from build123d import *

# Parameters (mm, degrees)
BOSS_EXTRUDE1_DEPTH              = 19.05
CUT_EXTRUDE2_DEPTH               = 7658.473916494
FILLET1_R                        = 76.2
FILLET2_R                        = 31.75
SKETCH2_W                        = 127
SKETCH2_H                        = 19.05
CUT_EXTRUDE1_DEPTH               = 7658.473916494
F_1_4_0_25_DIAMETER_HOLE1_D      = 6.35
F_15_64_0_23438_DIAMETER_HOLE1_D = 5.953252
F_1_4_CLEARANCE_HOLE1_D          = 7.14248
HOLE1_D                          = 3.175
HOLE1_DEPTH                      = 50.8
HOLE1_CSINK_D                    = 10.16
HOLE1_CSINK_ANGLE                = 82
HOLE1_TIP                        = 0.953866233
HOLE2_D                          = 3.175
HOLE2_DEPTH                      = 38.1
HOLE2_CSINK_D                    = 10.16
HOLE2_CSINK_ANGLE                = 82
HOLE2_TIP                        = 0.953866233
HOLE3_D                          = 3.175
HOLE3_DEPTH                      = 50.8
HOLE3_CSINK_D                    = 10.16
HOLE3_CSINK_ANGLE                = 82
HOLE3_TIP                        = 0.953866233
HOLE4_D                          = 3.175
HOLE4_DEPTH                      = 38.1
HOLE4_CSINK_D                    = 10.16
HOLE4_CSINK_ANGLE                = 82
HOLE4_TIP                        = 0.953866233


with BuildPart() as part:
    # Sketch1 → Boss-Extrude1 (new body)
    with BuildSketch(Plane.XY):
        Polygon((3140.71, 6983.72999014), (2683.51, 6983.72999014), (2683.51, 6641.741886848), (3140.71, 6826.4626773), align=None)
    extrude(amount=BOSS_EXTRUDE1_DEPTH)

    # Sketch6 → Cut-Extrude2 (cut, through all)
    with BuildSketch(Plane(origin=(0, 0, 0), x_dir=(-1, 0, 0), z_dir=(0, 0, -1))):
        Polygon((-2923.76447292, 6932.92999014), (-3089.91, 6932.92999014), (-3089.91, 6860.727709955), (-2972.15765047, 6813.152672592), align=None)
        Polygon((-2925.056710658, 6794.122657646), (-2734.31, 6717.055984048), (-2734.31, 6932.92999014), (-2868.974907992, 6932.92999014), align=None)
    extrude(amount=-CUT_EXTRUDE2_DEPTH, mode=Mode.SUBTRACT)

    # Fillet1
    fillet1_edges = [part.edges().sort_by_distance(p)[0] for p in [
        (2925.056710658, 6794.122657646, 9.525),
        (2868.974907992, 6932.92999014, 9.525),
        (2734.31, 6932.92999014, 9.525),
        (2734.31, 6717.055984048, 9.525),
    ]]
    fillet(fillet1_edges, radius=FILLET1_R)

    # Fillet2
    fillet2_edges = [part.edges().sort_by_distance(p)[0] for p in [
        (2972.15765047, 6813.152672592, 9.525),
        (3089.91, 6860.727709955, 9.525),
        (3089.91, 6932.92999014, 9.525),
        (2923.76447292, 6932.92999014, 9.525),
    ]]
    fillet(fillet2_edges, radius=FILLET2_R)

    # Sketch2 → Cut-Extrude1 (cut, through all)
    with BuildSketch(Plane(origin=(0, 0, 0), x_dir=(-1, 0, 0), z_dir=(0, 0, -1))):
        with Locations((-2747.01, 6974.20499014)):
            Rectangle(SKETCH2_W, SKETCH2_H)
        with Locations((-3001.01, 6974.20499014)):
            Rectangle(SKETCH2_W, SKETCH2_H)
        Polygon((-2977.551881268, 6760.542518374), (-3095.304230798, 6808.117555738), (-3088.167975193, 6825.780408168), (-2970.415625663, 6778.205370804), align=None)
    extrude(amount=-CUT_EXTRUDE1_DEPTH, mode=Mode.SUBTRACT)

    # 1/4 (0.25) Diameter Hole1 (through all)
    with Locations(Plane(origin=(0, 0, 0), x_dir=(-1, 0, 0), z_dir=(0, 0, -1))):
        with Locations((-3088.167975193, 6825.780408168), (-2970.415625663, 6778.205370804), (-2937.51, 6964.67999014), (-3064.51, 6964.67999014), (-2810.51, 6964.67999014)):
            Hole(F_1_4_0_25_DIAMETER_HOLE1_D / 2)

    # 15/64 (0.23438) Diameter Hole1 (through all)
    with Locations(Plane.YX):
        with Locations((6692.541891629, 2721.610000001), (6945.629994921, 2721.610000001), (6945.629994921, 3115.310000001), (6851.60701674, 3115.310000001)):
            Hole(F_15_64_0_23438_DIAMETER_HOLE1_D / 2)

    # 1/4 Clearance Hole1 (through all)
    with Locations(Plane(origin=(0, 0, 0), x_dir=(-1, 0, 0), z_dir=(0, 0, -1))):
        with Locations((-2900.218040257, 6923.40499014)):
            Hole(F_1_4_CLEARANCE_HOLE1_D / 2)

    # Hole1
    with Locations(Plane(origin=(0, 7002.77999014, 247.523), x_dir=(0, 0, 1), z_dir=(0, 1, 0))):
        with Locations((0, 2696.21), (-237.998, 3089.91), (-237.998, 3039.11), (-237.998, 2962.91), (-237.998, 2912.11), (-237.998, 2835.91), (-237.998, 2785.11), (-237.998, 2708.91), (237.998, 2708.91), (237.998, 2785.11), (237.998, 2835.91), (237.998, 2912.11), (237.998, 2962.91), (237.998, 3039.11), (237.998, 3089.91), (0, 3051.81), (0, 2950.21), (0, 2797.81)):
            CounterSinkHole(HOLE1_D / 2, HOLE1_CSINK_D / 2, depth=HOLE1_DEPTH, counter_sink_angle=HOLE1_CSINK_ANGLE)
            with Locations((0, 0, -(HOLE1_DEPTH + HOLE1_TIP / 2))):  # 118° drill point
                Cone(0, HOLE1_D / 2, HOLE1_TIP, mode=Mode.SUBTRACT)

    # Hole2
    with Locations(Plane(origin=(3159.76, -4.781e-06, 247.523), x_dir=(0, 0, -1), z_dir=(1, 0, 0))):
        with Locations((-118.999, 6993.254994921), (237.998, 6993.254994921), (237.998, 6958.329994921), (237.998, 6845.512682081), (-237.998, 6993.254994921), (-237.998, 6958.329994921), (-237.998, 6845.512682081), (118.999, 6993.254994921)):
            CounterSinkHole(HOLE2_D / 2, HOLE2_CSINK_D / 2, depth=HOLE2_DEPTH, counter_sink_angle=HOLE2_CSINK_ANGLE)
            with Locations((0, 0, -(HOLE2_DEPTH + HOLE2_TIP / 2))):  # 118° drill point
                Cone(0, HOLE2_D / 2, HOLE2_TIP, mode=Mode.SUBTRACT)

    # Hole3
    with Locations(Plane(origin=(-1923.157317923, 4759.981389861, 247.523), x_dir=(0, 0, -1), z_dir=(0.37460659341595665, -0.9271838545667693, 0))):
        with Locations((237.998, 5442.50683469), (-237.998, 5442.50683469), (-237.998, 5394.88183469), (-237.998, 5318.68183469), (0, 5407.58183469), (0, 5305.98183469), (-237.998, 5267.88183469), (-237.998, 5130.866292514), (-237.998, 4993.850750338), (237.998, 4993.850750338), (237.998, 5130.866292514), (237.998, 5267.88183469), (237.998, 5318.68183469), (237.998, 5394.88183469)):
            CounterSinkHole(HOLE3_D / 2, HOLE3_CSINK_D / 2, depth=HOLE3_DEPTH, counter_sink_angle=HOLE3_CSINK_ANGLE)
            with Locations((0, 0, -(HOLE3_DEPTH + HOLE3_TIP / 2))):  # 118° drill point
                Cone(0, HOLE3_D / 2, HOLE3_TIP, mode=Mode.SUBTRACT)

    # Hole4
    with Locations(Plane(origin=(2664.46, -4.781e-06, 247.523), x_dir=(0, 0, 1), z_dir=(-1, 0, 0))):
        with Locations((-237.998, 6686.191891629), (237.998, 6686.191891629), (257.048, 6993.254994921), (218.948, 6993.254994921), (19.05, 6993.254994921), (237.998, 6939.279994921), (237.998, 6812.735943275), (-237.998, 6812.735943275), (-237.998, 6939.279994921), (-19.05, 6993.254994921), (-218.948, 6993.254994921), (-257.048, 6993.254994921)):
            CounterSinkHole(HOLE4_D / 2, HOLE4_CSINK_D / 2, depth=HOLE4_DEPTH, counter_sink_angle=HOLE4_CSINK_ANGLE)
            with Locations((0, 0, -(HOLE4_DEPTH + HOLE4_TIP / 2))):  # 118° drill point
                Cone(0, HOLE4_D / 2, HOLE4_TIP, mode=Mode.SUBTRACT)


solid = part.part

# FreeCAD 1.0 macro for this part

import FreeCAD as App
import Part
import Sketcher
from FreeCAD import Vector
Q = App.Units.Quantity


def edges_at(feature, points):
    """Names of the edges that pass closest to the given points."""
    edges = feature.Shape.Edges
    near = lambda p: min(range(len(edges)), key=lambda i: edges[i].distToShape(Part.Vertex(*p))[0])
    return sorted({f"Edge{near(p) + 1}" for p in points})


def add_polygon(sketch, points):
    """Adds a closed chain of lines whose ends are joined by coincident constraints."""
    first, n = sketch.GeometryCount, len(points)
    for a, b in zip(points, points[1:] + points[:1]):
        sketch.addGeometry(Part.LineSegment(App.Vector(*a, 0), App.Vector(*b, 0)), False)
    for i in range(n):
        sketch.addConstraint(Sketcher.Constraint("Coincident", first + i, 2, first + (i + 1) % n, 1))

doc = App.newDocument("Part")
params = doc.addObject("Spreadsheet::Sheet", "Params")
for row, (alias, value) in enumerate([
    ("sketch1_width", "18 in"),
    ("pad1_length", "0.75 in"),
    ("sketch2_length", "5 in"),
    ("fillet_radius", "3 in"),
    ("fillet2_radius", "1.25 in"),
    ("sketch3_width", "5 in"),
    ("sketch3_length", "5 in"),
    ("sketch3_height", "0.75 in"),
    ("sketch3_length2", "0.75 in"),
    ("sketch4_diameter", "0.25 in"),
    ("hole_diameter", "0.25 in"),
    ("hole2_diameter", "5.953252 mm"),
    ("hole3_diameter", "0.2812 in"),
    ("sketch7_diameter", "0.125 in"),
    ("hole4_diameter", "0.125 in"),
    ("hole4_depth", "2 in"),
    ("hole4_csink_diameter", "0.4 in"),
    ("sketch8_diameter", "0.125 in"),
    ("hole5_diameter", "0.125 in"),
    ("hole5_depth", "1.5 in"),
    ("hole5_csink_diameter", "0.4 in"),
    ("sketch9_diameter", "0.125 in"),
    ("hole6_diameter", "0.125 in"),
    ("hole6_depth", "2 in"),
    ("hole6_csink_diameter", "0.4 in"),
    ("sketch10_diameter", "0.125 in"),
    ("hole7_diameter", "0.125 in"),
    ("hole7_depth", "1.5 in"),
    ("hole7_csink_diameter", "0.4 in"),
], start=1):
    params.set(f"A{row}", alias)
    params.set(f"B{row}", "=" + value)
    params.setAlias(f"B{row}", alias)

body = doc.addObject("PartDesign::Body", "Body")

sketch1 = body.newObject("Sketcher::SketchObject", "Sketch")
sketch1.AttachmentSupport = (doc.getObject("XY_Plane"), [""])
sketch1.MapMode = "FlatFace"
add_polygon(sketch1, [(3140.71, 6983.72999), (2683.51, 6983.72999), (2683.51, 6641.741887), (3140.71, 6826.462677)])
sketch1.addConstraint(Sketcher.Constraint("Horizontal", 0))
sketch1.addConstraint(Sketcher.Constraint("Vertical", 1))
sketch1.addConstraint(Sketcher.Constraint("Vertical", 3))
sketch1.addConstraint(Sketcher.Constraint("DistanceX", 0, 2, 0, 1, Q("18 in")))
sketch1.addConstraint(Sketcher.Constraint("Angle", 2, Q("22 deg")))
sketch1.addConstraint(Sketcher.Constraint("DistanceX", -1, 1, 0, 2, Q("105.65 in")))
sketch1.addConstraint(Sketcher.Constraint("DistanceY", 1, 2, 1, 1, Q("341.988103 mm")))
sketch1.addConstraint(Sketcher.Constraint("DistanceY", -1, 1, 0, 2, Q("6983.72999 mm")))
sketch1.setExpression("Constraints[7]", "Params.sketch1_width")
pad1 = body.newObject("PartDesign::Pad", "Pad")
pad1.Profile = sketch1
pad1.setExpression("Length", "Params.pad1_length")

sketch2 = body.newObject("Sketcher::SketchObject", "Sketch001")
sketch2.AttachmentSupport = (doc.getObject("XY_Plane"), [""])
sketch2.MapMode = "FlatFace"
add_polygon(sketch2, [(2923.764473, 6932.92999), (3089.91, 6932.92999), (3089.91, 6860.72771), (2972.15765, 6813.152673)])
add_polygon(sketch2, [(2925.056711, 6794.122658), (2734.31, 6717.055984), (2734.31, 6932.92999), (2868.974908, 6932.92999)])
sketch2.addConstraint(Sketcher.Constraint("Horizontal", 0))
sketch2.addConstraint(Sketcher.Constraint("Vertical", 1))
sketch2.addConstraint(Sketcher.Constraint("Vertical", 5))
sketch2.addConstraint(Sketcher.Constraint("Horizontal", 6))
sketch2.addConstraint(Sketcher.Constraint("Perpendicular", 2, 3))
sketch2.addConstraint(Sketcher.Constraint("Perpendicular", 3, 4))
sketch2.addConstraint(Sketcher.Constraint("Perpendicular", 4, 7))
sketch2.addConstraint(Sketcher.Constraint("Horizontal", 3, 2, 5, 2))
sketch2.addConstraint(Sketcher.Constraint("Distance", 2, Q("5 in")))
sketch2.addConstraint(Sketcher.Constraint("Angle", 2, Q("-158 deg")))
sketch2.addConstraint(Sketcher.Constraint("DistanceX", 4, 2, 1, 2, Q("14 in")))
sketch2.addConstraint(Sketcher.Constraint("DistanceX", -1, 1, 0, 2, Q("121.65 in")))
sketch2.addConstraint(Sketcher.Constraint("Distance", 3, Q("129.183998 mm")))
sketch2.addConstraint(Sketcher.Constraint("Distance", 7, Q("149.708531 mm")))
sketch2.addConstraint(Sketcher.Constraint("DistanceX", 6, 1, 6, 2, Q("134.664908 mm")))
sketch2.addConstraint(Sketcher.Constraint("DistanceY", -1, 1, 0, 2, Q("6932.92999 mm")))
sketch2.setExpression("Constraints[16]", "Params.sketch2_length")
pocket1 = body.newObject("PartDesign::Pocket", "Pocket")
pocket1.Profile = sketch2
pocket1.Type = "ThroughAll"
pocket1.Reversed = True
doc.recompute()

fillet = body.newObject("PartDesign::Fillet", "Fillet")
fillet.Base = (pocket1, edges_at(pocket1, [
    (2925.057, 6794.123, 9.525),
    (2868.975, 6932.93, 9.525),
    (2734.31, 6932.93, 9.525),
    (2734.31, 6717.056, 9.525),
]))
fillet.setExpression("Radius", "Params.fillet_radius")
doc.recompute()

fillet2 = body.newObject("PartDesign::Fillet", "Fillet001")
fillet2.Base = (fillet, edges_at(fillet, [
    (2972.158, 6813.153, 9.525),
    (3089.91, 6860.728, 9.525),
    (3089.91, 6932.93, 9.525),
    (2923.764, 6932.93, 9.525),
]))
fillet2.setExpression("Radius", "Params.fillet2_radius")

sketch3 = body.newObject("Sketcher::SketchObject", "Sketch002")
sketch3.AttachmentSupport = (doc.getObject("XY_Plane"), [""])
sketch3.MapMode = "FlatFace"
add_polygon(sketch3, [(2810.51, 6983.72999), (2810.51, 6964.67999), (2683.51, 6964.67999), (2683.51, 6983.72999)])
add_polygon(sketch3, [(3064.51, 6983.72999), (3064.51, 6964.67999), (2937.51, 6964.67999), (2937.51, 6983.72999)])
add_polygon(sketch3, [(3095.304231, 6808.117556), (2977.551881, 6760.542518), (2970.415626, 6778.205371), (3088.167975, 6825.780408)])
sketch3.addConstraint(Sketcher.Constraint("Vertical", 0))
sketch3.addConstraint(Sketcher.Constraint("Horizontal", 1))
sketch3.addConstraint(Sketcher.Constraint("Vertical", 2))
sketch3.addConstraint(Sketcher.Constraint("Horizontal", 3))
sketch3.addConstraint(Sketcher.Constraint("Vertical", 4))
sketch3.addConstraint(Sketcher.Constraint("Horizontal", 5))
sketch3.addConstraint(Sketcher.Constraint("Vertical", 6))
sketch3.addConstraint(Sketcher.Constraint("Horizontal", 7))
sketch3.addConstraint(Sketcher.Constraint("Perpendicular", 8, 9))
sketch3.addConstraint(Sketcher.Constraint("Perpendicular", 9, 10))
sketch3.addConstraint(Sketcher.Constraint("Perpendicular", 10, 11))
sketch3.addConstraint(Sketcher.Constraint("Horizontal", 1, 2, 4, 2))
sketch3.addConstraint(Sketcher.Constraint("Horizontal", 3, 2, 6, 2))
sketch3.addConstraint(Sketcher.Constraint("Equal", 3, 5))
sketch3.addConstraint(Sketcher.Constraint("DistanceX", 1, 2, 1, 1, Q("5 in")))
sketch3.addConstraint(Sketcher.Constraint("Distance", 8, Q("5 in")))
sketch3.addConstraint(Sketcher.Constraint("Angle", 8, Q("-158 deg")))
sketch3.addConstraint(Sketcher.Constraint("DistanceX", 0, 2, 4, 2, Q("10 in")))
sketch3.addConstraint(Sketcher.Constraint("DistanceY", 0, 2, 0, 1, Q("0.75 in")))
sketch3.addConstraint(Sketcher.Constraint("Distance", 9, Q("0.75 in")))
sketch3.addConstraint(Sketcher.Constraint("DistanceX", -1, 1, 0, 2, Q("110.65 in")))
sketch3.addConstraint(Sketcher.Constraint("DistanceY", -1, 1, 0, 2, Q("6964.67999 mm")))
sketch3.addConstraint(Sketcher.Constraint("DistanceX", -1, 1, 8, 2, Q("2977.551881 mm")))
sketch3.addConstraint(Sketcher.Constraint("DistanceY", -1, 1, 8, 2, Q("6760.542518 mm")))
sketch3.setExpression("Constraints[26]", "Params.sketch3_width")
sketch3.setExpression("Constraints[27]", "Params.sketch3_length")
sketch3.setExpression("Constraints[30]", "Params.sketch3_height")
sketch3.setExpression("Constraints[31]", "Params.sketch3_length2")
pocket2 = body.newObject("PartDesign::Pocket", "Pocket001")
pocket2.Profile = sketch3
pocket2.Type = "ThroughAll"
pocket2.Reversed = True

sketch4 = body.newObject("Sketcher::SketchObject", "Sketch003")
sketch4.AttachmentSupport = (doc.getObject("XY_Plane"), [""])
sketch4.MapMode = "FlatFace"
sketch4.addGeometry(Part.Circle(Vector(3088.167975, 6825.780408, 0), Vector(0, 0, 1), 3.175), False)
sketch4.addGeometry(Part.Circle(Vector(2970.415626, 6778.205371, 0), Vector(0, 0, 1), 3.175), False)
sketch4.addGeometry(Part.Circle(Vector(2937.51, 6964.67999, 0), Vector(0, 0, 1), 3.175), False)
sketch4.addGeometry(Part.Circle(Vector(3064.51, 6964.67999, 0), Vector(0, 0, 1), 3.175), False)
sketch4.addGeometry(Part.Circle(Vector(2810.51, 6964.67999, 0), Vector(0, 0, 1), 3.175), False)
sketch4.addConstraint(Sketcher.Constraint("Equal", 0, 1))
sketch4.addConstraint(Sketcher.Constraint("Equal", 1, 2))
sketch4.addConstraint(Sketcher.Constraint("Equal", 2, 3))
sketch4.addConstraint(Sketcher.Constraint("Equal", 3, 4))
sketch4.addConstraint(Sketcher.Constraint("Horizontal", 2, 3, 3, 3))
sketch4.addConstraint(Sketcher.Constraint("Horizontal", 3, 3, 4, 3))
sketch4.addConstraint(Sketcher.Constraint("Diameter", 0, Q("0.25 in")))
sketch4.addConstraint(Sketcher.Constraint("DistanceX", 2, 3, 3, 3, Q("5 in")))
sketch4.addConstraint(Sketcher.Constraint("DistanceX", 4, 3, 2, 3, Q("5 in")))
sketch4.addConstraint(Sketcher.Constraint("DistanceX", -1, 1, 2, 3, Q("115.65 in")))
sketch4.addConstraint(Sketcher.Constraint("DistanceY", -1, 1, 0, 3, Q("6825.780408 mm")))
sketch4.addConstraint(Sketcher.Constraint("DistanceY", -1, 1, 1, 3, Q("6778.205371 mm")))
sketch4.addConstraint(Sketcher.Constraint("DistanceY", -1, 1, 2, 3, Q("6964.67999 mm")))
sketch4.addConstraint(Sketcher.Constraint("DistanceX", 1, 3, 0, 3, Q("117.75235 mm")))
sketch4.addConstraint(Sketcher.Constraint("DistanceX", -1, 1, 0, 3, Q("3088.167975 mm")))
sketch4.setExpression("Constraints[6]", "Params.sketch4_diameter")
doc.recompute()
hole = body.newObject("PartDesign::Hole", "Hole")
hole.Profile = sketch4
hole.ThreadType = "None"
hole.setExpression("Diameter", "Params.hole_diameter")
hole.DepthType = "ThroughAll"
hole.Reversed = True

sketch5 = body.newObject("Sketcher::SketchObject", "Sketch004")
sketch5.AttachmentSupport = (doc.getObject("XY_Plane"), [""])
sketch5.MapMode = "FlatFace"
sketch5.addGeometry(Part.Circle(Vector(2721.61, 6692.541892, 0), Vector(0, 0, 1), 2.976626), False)
sketch5.addGeometry(Part.Circle(Vector(2721.61, 6945.629995, 0), Vector(0, 0, 1), 2.976626), False)
sketch5.addGeometry(Part.Circle(Vector(3115.31, 6945.629995, 0), Vector(0, 0, 1), 2.976626), False)
sketch5.addGeometry(Part.Circle(Vector(3115.31, 6851.607017, 0), Vector(0, 0, 1), 2.976626), False)
sketch5.addConstraint(Sketcher.Constraint("Equal", 0, 1))
sketch5.addConstraint(Sketcher.Constraint("Equal", 1, 2))
sketch5.addConstraint(Sketcher.Constraint("Equal", 2, 3))
sketch5.addConstraint(Sketcher.Constraint("Horizontal", 1, 3, 2, 3))
sketch5.addConstraint(Sketcher.Constraint("Vertical", 0, 3, 1, 3))
sketch5.addConstraint(Sketcher.Constraint("Vertical", 2, 3, 3, 3))
sketch5.addConstraint(Sketcher.Constraint("DistanceX", 1, 3, 2, 3, Q("15.5 in")))
sketch5.addConstraint(Sketcher.Constraint("DistanceX", -1, 1, 0, 3, Q("107.15 in")))
sketch5.addConstraint(Sketcher.Constraint("DistanceY", -1, 1, 1, 3, Q("273.4499998 in")))
sketch5.addConstraint(Sketcher.Constraint("Diameter", 0, Q("5.953252 mm")))
sketch5.addConstraint(Sketcher.Constraint("DistanceY", -1, 1, 0, 3, Q("6692.541892 mm")))
sketch5.addConstraint(Sketcher.Constraint("DistanceY", 3, 3, 2, 3, Q("94.022978 mm")))
doc.recompute()
hole2 = body.newObject("PartDesign::Hole", "Hole001")
hole2.Profile = sketch5
hole2.ThreadType = "None"
hole2.setExpression("Diameter", "Params.hole2_diameter")
hole2.DepthType = "ThroughAll"
hole2.Reversed = True

sketch6 = body.newObject("Sketcher::SketchObject", "Sketch005")
sketch6.AttachmentSupport = (doc.getObject("XY_Plane"), [""])
sketch6.MapMode = "FlatFace"
sketch6.addGeometry(Part.Circle(Vector(2900.21804, 6923.40499, 0), Vector(0, 0, 1), 3.57124), False)
sketch6.addConstraint(Sketcher.Constraint("Diameter", 0, Q("0.2812 in")))
sketch6.addConstraint(Sketcher.Constraint("DistanceX", -1, 1, 0, 3, Q("2900.21804 mm")))
sketch6.addConstraint(Sketcher.Constraint("DistanceY", -1, 1, 0, 3, Q("6923.40499 mm")))
doc.recompute()
hole3 = body.newObject("PartDesign::Hole", "Hole002")
hole3.Profile = sketch6
hole3.ThreadType = "None"
hole3.setExpression("Diameter", "Params.hole3_diameter")
hole3.DepthType = "ThroughAll"
hole3.Reversed = True

sketch7 = body.newObject("Sketcher::SketchObject", "Sketch006")
sketch7.AttachmentSupport = (doc.getObject("XZ_Plane"), [""])
sketch7.MapMode = "FlatFace"
sketch7.AttachmentOffset = App.Placement(Vector(0, 0, -7002.77999), App.Rotation())
sketch7.addGeometry(Part.Circle(Vector(2696.21, 247.523, 0), Vector(0, 0, 1), 1.5875), False)
sketch7.addGeometry(Part.Circle(Vector(3089.91, 9.525, 0), Vector(0, 0, 1), 1.5875), False)
sketch7.addGeometry(Part.Circle(Vector(3039.11, 9.525, 0), Vector(0, 0, 1), 1.5875), False)
sketch7.addGeometry(Part.Circle(Vector(2962.91, 9.525, 0), Vector(0, 0, 1), 1.5875), False)
sketch7.addGeometry(Part.Circle(Vector(2912.11, 9.525, 0), Vector(0, 0, 1), 1.5875), False)
sketch7.addGeometry(Part.Circle(Vector(2835.91, 9.525, 0), Vector(0, 0, 1), 1.5875), False)
sketch7.addGeometry(Part.Circle(Vector(2785.11, 9.525, 0), Vector(0, 0, 1), 1.5875), False)
sketch7.addGeometry(Part.Circle(Vector(2708.91, 9.525, 0), Vector(0, 0, 1), 1.5875), False)
sketch7.addGeometry(Part.Circle(Vector(2708.91, 485.521, 0), Vector(0, 0, 1), 1.5875), False)
sketch7.addGeometry(Part.Circle(Vector(2785.11, 485.521, 0), Vector(0, 0, 1), 1.5875), False)
sketch7.addGeometry(Part.Circle(Vector(2835.91, 485.521, 0), Vector(0, 0, 1), 1.5875), False)
sketch7.addGeometry(Part.Circle(Vector(2912.11, 485.521, 0), Vector(0, 0, 1), 1.5875), False)
sketch7.addGeometry(Part.Circle(Vector(2962.91, 485.521, 0), Vector(0, 0, 1), 1.5875), False)
sketch7.addGeometry(Part.Circle(Vector(3039.11, 485.521, 0), Vector(0, 0, 1), 1.5875), False)
sketch7.addGeometry(Part.Circle(Vector(3089.91, 485.521, 0), Vector(0, 0, 1), 1.5875), False)
sketch7.addGeometry(Part.Circle(Vector(3051.81, 247.523, 0), Vector(0, 0, 1), 1.5875), False)
sketch7.addGeometry(Part.Circle(Vector(2950.21, 247.523, 0), Vector(0, 0, 1), 1.5875), False)
sketch7.addGeometry(Part.Circle(Vector(2797.81, 247.523, 0), Vector(0, 0, 1), 1.5875), False)
sketch7.addConstraint(Sketcher.Constraint("Equal", 0, 1))
sketch7.addConstraint(Sketcher.Constraint("Equal", 1, 2))
sketch7.addConstraint(Sketcher.Constraint("Equal", 2, 3))
sketch7.addConstraint(Sketcher.Constraint("Equal", 3, 4))
sketch7.addConstraint(Sketcher.Constraint("Equal", 4, 5))
sketch7.addConstraint(Sketcher.Constraint("Equal", 5, 6))
sketch7.addConstraint(Sketcher.Constraint("Equal", 6, 7))
sketch7.addConstraint(Sketcher.Constraint("Equal", 7, 8))
sketch7.addConstraint(Sketcher.Constraint("Equal", 8, 9))
sketch7.addConstraint(Sketcher.Constraint("Equal", 9, 10))
sketch7.addConstraint(Sketcher.Constraint("Equal", 10, 11))
sketch7.addConstraint(Sketcher.Constraint("Equal", 11, 12))
sketch7.addConstraint(Sketcher.Constraint("Equal", 12, 13))
sketch7.addConstraint(Sketcher.Constraint("Equal", 13, 14))
sketch7.addConstraint(Sketcher.Constraint("Equal", 14, 15))
sketch7.addConstraint(Sketcher.Constraint("Equal", 15, 16))
sketch7.addConstraint(Sketcher.Constraint("Equal", 16, 17))
sketch7.addConstraint(Sketcher.Constraint("Horizontal", 1, 3, 2, 3))
sketch7.addConstraint(Sketcher.Constraint("Horizontal", 2, 3, 3, 3))
sketch7.addConstraint(Sketcher.Constraint("Horizontal", 3, 3, 4, 3))
sketch7.addConstraint(Sketcher.Constraint("Horizontal", 4, 3, 5, 3))
sketch7.addConstraint(Sketcher.Constraint("Horizontal", 5, 3, 6, 3))
sketch7.addConstraint(Sketcher.Constraint("Horizontal", 6, 3, 7, 3))
sketch7.addConstraint(Sketcher.Constraint("Horizontal", 8, 3, 9, 3))
sketch7.addConstraint(Sketcher.Constraint("Horizontal", 9, 3, 10, 3))
sketch7.addConstraint(Sketcher.Constraint("Horizontal", 10, 3, 11, 3))
sketch7.addConstraint(Sketcher.Constraint("Horizontal", 11, 3, 12, 3))
sketch7.addConstraint(Sketcher.Constraint("Horizontal", 12, 3, 13, 3))
sketch7.addConstraint(Sketcher.Constraint("Horizontal", 13, 3, 14, 3))
sketch7.addConstraint(Sketcher.Constraint("Horizontal", 0, 3, 15, 3))
sketch7.addConstraint(Sketcher.Constraint("Horizontal", 15, 3, 16, 3))
sketch7.addConstraint(Sketcher.Constraint("Horizontal", 16, 3, 17, 3))
sketch7.addConstraint(Sketcher.Constraint("Vertical", 7, 3, 8, 3))
sketch7.addConstraint(Sketcher.Constraint("Vertical", 6, 3, 9, 3))
sketch7.addConstraint(Sketcher.Constraint("Vertical", 5, 3, 10, 3))
sketch7.addConstraint(Sketcher.Constraint("Vertical", 4, 3, 11, 3))
sketch7.addConstraint(Sketcher.Constraint("Vertical", 3, 3, 12, 3))
sketch7.addConstraint(Sketcher.Constraint("Vertical", 2, 3, 13, 3))
sketch7.addConstraint(Sketcher.Constraint("Vertical", 1, 3, 14, 3))
sketch7.addConstraint(Sketcher.Constraint("Diameter", 0, Q("0.125 in")))
sketch7.addConstraint(Sketcher.Constraint("DistanceX", 2, 3, 1, 3, Q("2 in")))
sketch7.addConstraint(Sketcher.Constraint("DistanceX", 3, 3, 2, 3, Q("3 in")))
sketch7.addConstraint(Sketcher.Constraint("DistanceX", 4, 3, 3, 3, Q("2 in")))
sketch7.addConstraint(Sketcher.Constraint("DistanceX", 5, 3, 4, 3, Q("3 in")))
sketch7.addConstraint(Sketcher.Constraint("DistanceX", 6, 3, 5, 3, Q("2 in")))
sketch7.addConstraint(Sketcher.Constraint("DistanceX", 7, 3, 6, 3, Q("3 in")))
sketch7.addConstraint(Sketcher.Constraint("DistanceX", 16, 3, 15, 3, Q("4 in")))
sketch7.addConstraint(Sketcher.Constraint("DistanceX", 0, 3, 17, 3, Q("4 in")))
sketch7.addConstraint(Sketcher.Constraint("DistanceX", 17, 3, 16, 3, Q("6 in")))
sketch7.addConstraint(Sketcher.Constraint("DistanceX", 0, 3, 1, 3, Q("15.5 in")))
sketch7.addConstraint(Sketcher.Constraint("DistanceX", -1, 1, 0, 3, Q("106.15 in")))
sketch7.addConstraint(Sketcher.Constraint("DistanceY", 1, 3, 0, 3, Q("9.37 in")))
sketch7.addConstraint(Sketcher.Constraint("DistanceY", 0, 3, 8, 3, Q("9.37 in")))
sketch7.addConstraint(Sketcher.Constraint("DistanceY", -1, 1, 0, 3, Q("9.745 in")))
sketch7.setExpression("Constraints[39]", "Params.sketch7_diameter")
doc.recompute()
hole4 = body.newObject("PartDesign::Hole", "Hole003")
hole4.Profile = sketch7
hole4.ThreadType = "None"
hole4.setExpression("Diameter", "Params.hole4_diameter")
hole4.DepthType = "Dimension"
hole4.setExpression("Depth", "Params.hole4_depth")
hole4.DrillPoint = "Angled"
hole4.DrillPointAngle = 118
hole4.HoleCutType = "Countersink"
hole4.setExpression("HoleCutDiameter", "Params.hole4_csink_diameter")
hole4.HoleCutCountersinkAngle = 82
hole4.Reversed = True

sketch8 = body.newObject("Sketcher::SketchObject", "Sketch007")
sketch8.AttachmentSupport = (doc.getObject("YZ_Plane"), [""])
sketch8.MapMode = "FlatFace"
sketch8.AttachmentOffset = App.Placement(Vector(0, 0, 124.4 * 25.4), App.Rotation())
sketch8.addGeometry(Part.Circle(Vector(6993.25499, 366.522, 0), Vector(0, 0, 1), 1.5875), False)
sketch8.addGeometry(Part.Circle(Vector(6993.25499, 9.525, 0), Vector(0, 0, 1), 1.5875), False)
sketch8.addGeometry(Part.Circle(Vector(6958.32999, 9.525, 0), Vector(0, 0, 1), 1.5875), False)
sketch8.addGeometry(Part.Circle(Vector(6845.512677, 9.525, 0), Vector(0, 0, 1), 1.5875), False)
sketch8.addGeometry(Part.Circle(Vector(6993.25499, 485.521, 0), Vector(0, 0, 1), 1.5875), False)
sketch8.addGeometry(Part.Circle(Vector(6958.32999, 485.521, 0), Vector(0, 0, 1), 1.5875), False)
sketch8.addGeometry(Part.Circle(Vector(6845.512677, 485.521, 0), Vector(0, 0, 1), 1.5875), False)
sketch8.addGeometry(Part.Circle(Vector(6993.25499, 128.524, 0), Vector(0, 0, 1), 1.5875), False)
sketch8.addConstraint(Sketcher.Constraint("Equal", 0, 1))
sketch8.addConstraint(Sketcher.Constraint("Equal", 1, 2))
sketch8.addConstraint(Sketcher.Constraint("Equal", 2, 3))
sketch8.addConstraint(Sketcher.Constraint("Equal", 3, 4))
sketch8.addConstraint(Sketcher.Constraint("Equal", 4, 5))
sketch8.addConstraint(Sketcher.Constraint("Equal", 5, 6))
sketch8.addConstraint(Sketcher.Constraint("Equal", 6, 7))
sketch8.addConstraint(Sketcher.Constraint("Horizontal", 1, 3, 2, 3))
sketch8.addConstraint(Sketcher.Constraint("Horizontal", 2, 3, 3, 3))
sketch8.addConstraint(Sketcher.Constraint("Horizontal", 4, 3, 5, 3))
sketch8.addConstraint(Sketcher.Constraint("Horizontal", 5, 3, 6, 3))
sketch8.addConstraint(Sketcher.Constraint("Vertical", 0, 3, 1, 3))
sketch8.addConstraint(Sketcher.Constraint("Vertical", 1, 3, 4, 3))
sketch8.addConstraint(Sketcher.Constraint("Vertical", 2, 3, 5, 3))
sketch8.addConstraint(Sketcher.Constraint("Vertical", 3, 3, 6, 3))
sketch8.addConstraint(Sketcher.Constraint("Vertical", 4, 3, 7, 3))
sketch8.addConstraint(Sketcher.Constraint("Diameter", 0, Q("0.125 in")))
sketch8.addConstraint(Sketcher.Constraint("DistanceY", -1, 1, 0, 3, Q("14.43 in")))
sketch8.addConstraint(Sketcher.Constraint("DistanceY", -1, 1, 7, 3, Q("5.06 in")))
sketch8.addConstraint(Sketcher.Constraint("DistanceY", 1, 3, 4, 3, Q("18.74 in")))
sketch8.addConstraint(Sketcher.Constraint("DistanceY", -1, 1, 1, 3, Q("0.375 in")))
sketch8.addConstraint(Sketcher.Constraint("DistanceX", 2, 3, 1, 3, Q("1.375 in")))
sketch8.addConstraint(Sketcher.Constraint("DistanceX", -1, 1, 0, 3, Q("6993.25499 mm")))
sketch8.addConstraint(Sketcher.Constraint("DistanceX", -1, 1, 3, 3, Q("6845.512677 mm")))
sketch8.setExpression("Constraints[16]", "Params.sketch8_diameter")
doc.recompute()
hole5 = body.newObject("PartDesign::Hole", "Hole004")
hole5.Profile = sketch8
hole5.ThreadType = "None"
hole5.setExpression("Diameter", "Params.hole5_diameter")
hole5.DepthType = "Dimension"
hole5.setExpression("Depth", "Params.hole5_depth")
hole5.DrillPoint = "Angled"
hole5.DrillPointAngle = 118
hole5.HoleCutType = "Countersink"
hole5.setExpression("HoleCutDiameter", "Params.hole5_csink_diameter")
hole5.HoleCutCountersinkAngle = 82

sketch9 = body.newObject("Sketcher::SketchObject", "Sketch008")
sketch9.Placement = App.Placement(Vector(-1923.157316, 4759.981391, 0), App.Rotation(Vector(0, 0, -1), Vector(0.927183855, 0.374606593, 0), Vector(0.374606593, -0.927183855, 0), "ZXY"))
sketch9.addGeometry(Part.Circle(Vector(-9.525, 5442.506836, 0), Vector(0, 0, 1), 1.5875), False)
sketch9.addGeometry(Part.Circle(Vector(-485.521, 5442.506836, 0), Vector(0, 0, 1), 1.5875), False)
sketch9.addGeometry(Part.Circle(Vector(-485.521, 5394.881836, 0), Vector(0, 0, 1), 1.5875), False)
sketch9.addGeometry(Part.Circle(Vector(-485.521, 5318.681836, 0), Vector(0, 0, 1), 1.5875), False)
sketch9.addGeometry(Part.Circle(Vector(-247.523, 5407.581836, 0), Vector(0, 0, 1), 1.5875), False)
sketch9.addGeometry(Part.Circle(Vector(-247.523, 5305.981836, 0), Vector(0, 0, 1), 1.5875), False)
sketch9.addGeometry(Part.Circle(Vector(-485.521, 5267.881835, 0), Vector(0, 0, 1), 1.5875), False)
sketch9.addGeometry(Part.Circle(Vector(-485.521, 5130.866293, 0), Vector(0, 0, 1), 1.5875), False)
sketch9.addGeometry(Part.Circle(Vector(-485.521, 4993.850751, 0), Vector(0, 0, 1), 1.5875), False)
sketch9.addGeometry(Part.Circle(Vector(-9.525, 4993.850751, 0), Vector(0, 0, 1), 1.5875), False)
sketch9.addGeometry(Part.Circle(Vector(-9.525, 5130.866293, 0), Vector(0, 0, 1), 1.5875), False)
sketch9.addGeometry(Part.Circle(Vector(-9.525, 5267.881835, 0), Vector(0, 0, 1), 1.5875), False)
sketch9.addGeometry(Part.Circle(Vector(-9.525, 5318.681836, 0), Vector(0, 0, 1), 1.5875), False)
sketch9.addGeometry(Part.Circle(Vector(-9.525, 5394.881836, 0), Vector(0, 0, 1), 1.5875), False)
sketch9.addConstraint(Sketcher.Constraint("Equal", 0, 1))
sketch9.addConstraint(Sketcher.Constraint("Equal", 1, 2))
sketch9.addConstraint(Sketcher.Constraint("Equal", 2, 3))
sketch9.addConstraint(Sketcher.Constraint("Equal", 3, 4))
sketch9.addConstraint(Sketcher.Constraint("Equal", 4, 5))
sketch9.addConstraint(Sketcher.Constraint("Equal", 5, 6))
sketch9.addConstraint(Sketcher.Constraint("Equal", 6, 7))
sketch9.addConstraint(Sketcher.Constraint("Equal", 7, 8))
sketch9.addConstraint(Sketcher.Constraint("Equal", 8, 9))
sketch9.addConstraint(Sketcher.Constraint("Equal", 9, 10))
sketch9.addConstraint(Sketcher.Constraint("Equal", 10, 11))
sketch9.addConstraint(Sketcher.Constraint("Equal", 11, 12))
sketch9.addConstraint(Sketcher.Constraint("Equal", 12, 13))
sketch9.addConstraint(Sketcher.Constraint("Horizontal", 0, 3, 1, 3))
sketch9.addConstraint(Sketcher.Constraint("Horizontal", 8, 3, 9, 3))
sketch9.addConstraint(Sketcher.Constraint("Horizontal", 7, 3, 10, 3))
sketch9.addConstraint(Sketcher.Constraint("Horizontal", 6, 3, 11, 3))
sketch9.addConstraint(Sketcher.Constraint("Horizontal", 3, 3, 12, 3))
sketch9.addConstraint(Sketcher.Constraint("Horizontal", 2, 3, 13, 3))
sketch9.addConstraint(Sketcher.Constraint("Vertical", 1, 3, 2, 3))
sketch9.addConstraint(Sketcher.Constraint("Vertical", 2, 3, 3, 3))
sketch9.addConstraint(Sketcher.Constraint("Vertical", 4, 3, 5, 3))
sketch9.addConstraint(Sketcher.Constraint("Vertical", 3, 3, 6, 3))
sketch9.addConstraint(Sketcher.Constraint("Vertical", 6, 3, 7, 3))
sketch9.addConstraint(Sketcher.Constraint("Vertical", 7, 3, 8, 3))
sketch9.addConstraint(Sketcher.Constraint("Vertical", 0, 3, 9, 3))
sketch9.addConstraint(Sketcher.Constraint("Vertical", 9, 3, 10, 3))
sketch9.addConstraint(Sketcher.Constraint("Vertical", 10, 3, 11, 3))
sketch9.addConstraint(Sketcher.Constraint("Vertical", 11, 3, 12, 3))
sketch9.addConstraint(Sketcher.Constraint("Vertical", 12, 3, 13, 3))
sketch9.addConstraint(Sketcher.Constraint("Diameter", 0, Q("0.125 in")))
sketch9.addConstraint(Sketcher.Constraint("DistanceY", 3, 3, 2, 3, Q("3 in")))
sketch9.addConstraint(Sketcher.Constraint("DistanceY", 5, 3, 4, 3, Q("4 in")))
sketch9.addConstraint(Sketcher.Constraint("DistanceY", 6, 3, 3, 3, Q("2 in")))
sketch9.addConstraint(Sketcher.Constraint("DistanceY", 2, 3, 4, 3, Q("0.5 in")))
sketch9.addConstraint(Sketcher.Constraint("DistanceX", 1, 3, 0, 3, Q("18.74 in")))
sketch9.addConstraint(Sketcher.Constraint("DistanceX", 2, 3, 4, 3, Q("9.37 in")))
sketch9.addConstraint(Sketcher.Constraint("DistanceX", 0, 3, -1, 1, Q("0.375 in")))
sketch9.addConstraint(Sketcher.Constraint("DistanceY", 2, 3, 1, 3, Q("1.875 in")))
sketch9.addConstraint(Sketcher.Constraint("DistanceY", -1, 1, 8, 3, Q("4993.850751 mm")))
sketch9.addConstraint(Sketcher.Constraint("DistanceY", -1, 1, 0, 3, Q("5442.506836 mm")))
sketch9.addConstraint(Sketcher.Constraint("DistanceY", -1, 1, 7, 3, Q("5130.866293 mm")))
sketch9.setExpression("Constraints[30]", "Params.sketch9_diameter")
doc.recompute()
hole6 = body.newObject("PartDesign::Hole", "Hole005")
hole6.Profile = sketch9
hole6.ThreadType = "None"
hole6.setExpression("Diameter", "Params.hole6_diameter")
hole6.DepthType = "Dimension"
hole6.setExpression("Depth", "Params.hole6_depth")
hole6.DrillPoint = "Angled"
hole6.DrillPointAngle = 118
hole6.HoleCutType = "Countersink"
hole6.setExpression("HoleCutDiameter", "Params.hole6_csink_diameter")
hole6.HoleCutCountersinkAngle = 82

sketch10 = body.newObject("Sketcher::SketchObject", "Sketch009")
sketch10.AttachmentSupport = (doc.getObject("YZ_Plane"), [""])
sketch10.MapMode = "FlatFace"
sketch10.AttachmentOffset = App.Placement(Vector(0, 0, 104.9 * 25.4), App.Rotation())
sketch10.addGeometry(Part.Circle(Vector(6686.191887, 9.525, 0), Vector(0, 0, 1), 1.5875), False)
sketch10.addGeometry(Part.Circle(Vector(6686.191887, 485.521, 0), Vector(0, 0, 1), 1.5875), False)
sketch10.addGeometry(Part.Circle(Vector(6993.25499, 504.571, 0), Vector(0, 0, 1), 1.5875), False)
sketch10.addGeometry(Part.Circle(Vector(6993.25499, 466.471, 0), Vector(0, 0, 1), 1.5875), False)
sketch10.addGeometry(Part.Circle(Vector(6993.25499, 266.573, 0), Vector(0, 0, 1), 1.5875), False)
sketch10.addGeometry(Part.Circle(Vector(6939.27999, 485.521, 0), Vector(0, 0, 1), 1.5875), False)
sketch10.addGeometry(Part.Circle(Vector(6812.735938, 485.521, 0), Vector(0, 0, 1), 1.5875), False)
sketch10.addGeometry(Part.Circle(Vector(6812.735938, 9.525, 0), Vector(0, 0, 1), 1.5875), False)
sketch10.addGeometry(Part.Circle(Vector(6939.27999, 9.525, 0), Vector(0, 0, 1), 1.5875), False)
sketch10.addGeometry(Part.Circle(Vector(6993.25499, 228.473, 0), Vector(0, 0, 1), 1.5875), False)
sketch10.addGeometry(Part.Circle(Vector(6993.25499, 28.575, 0), Vector(0, 0, 1), 1.5875), False)
sketch10.addGeometry(Part.Circle(Vector(6993.25499, -9.525, 0), Vector(0, 0, 1), 1.5875), False)
sketch10.addConstraint(Sketcher.Constraint("Equal", 0, 1))
sketch10.addConstraint(Sketcher.Constraint("Equal", 1, 2))
sketch10.addConstraint(Sketcher.Constraint("Equal", 2, 3))
sketch10.addConstraint(Sketcher.Constraint("Equal", 3, 4))
sketch10.addConstraint(Sketcher.Constraint("Equal", 4, 5))
sketch10.addConstraint(Sketcher.Constraint("Equal", 5, 6))
sketch10.addConstraint(Sketcher.Constraint("Equal", 6, 7))
sketch10.addConstraint(Sketcher.Constraint("Equal", 7, 8))
sketch10.addConstraint(Sketcher.Constraint("Equal", 8, 9))
sketch10.addConstraint(Sketcher.Constraint("Equal", 9, 10))
sketch10.addConstraint(Sketcher.Constraint("Equal", 10, 11))
sketch10.addConstraint(Sketcher.Constraint("Horizontal", 1, 3, 5, 3))
sketch10.addConstraint(Sketcher.Constraint("Horizontal", 5, 3, 6, 3))
sketch10.addConstraint(Sketcher.Constraint("Horizontal", 0, 3, 7, 3))
sketch10.addConstraint(Sketcher.Constraint("Horizontal", 7, 3, 8, 3))
sketch10.addConstraint(Sketcher.Constraint("Vertical", 0, 3, 1, 3))
sketch10.addConstraint(Sketcher.Constraint("Vertical", 2, 3, 3, 3))
sketch10.addConstraint(Sketcher.Constraint("Vertical", 3, 3, 4, 3))
sketch10.addConstraint(Sketcher.Constraint("Vertical", 6, 3, 7, 3))
sketch10.addConstraint(Sketcher.Constraint("Vertical", 5, 3, 8, 3))
sketch10.addConstraint(Sketcher.Constraint("Vertical", 4, 3, 9, 3))
sketch10.addConstraint(Sketcher.Constraint("Vertical", 9, 3, 10, 3))
sketch10.addConstraint(Sketcher.Constraint("Vertical", 10, 3, 11, 3))
sketch10.addConstraint(Sketcher.Constraint("Diameter", 0, Q("0.125 in")))
sketch10.addConstraint(Sketcher.Constraint("DistanceY", 3, 3, 2, 3, Q("1.5 in")))
sketch10.addConstraint(Sketcher.Constraint("DistanceY", 9, 3, 4, 3, Q("1.5 in")))
sketch10.addConstraint(Sketcher.Constraint("DistanceY", 11, 3, 10, 3, Q("1.5 in")))
sketch10.addConstraint(Sketcher.Constraint("DistanceY", 0, 3, 1, 3, Q("18.74 in")))
sketch10.addConstraint(Sketcher.Constraint("DistanceY", 1, 3, 2, 3, Q("0.75 in")))
sketch10.addConstraint(Sketcher.Constraint("DistanceY", 4, 3, 3, 3, Q("7.87 in")))
sketch10.addConstraint(Sketcher.Constraint("DistanceY", 8, 3, 10, 3, Q("0.75 in")))
sketch10.addConstraint(Sketcher.Constraint("DistanceY", -1, 1, 0, 3, Q("0.375 in")))
sketch10.addConstraint(Sketcher.Constraint("DistanceX", 5, 3, 2, 3, Q("2.125 in")))
sketch10.addConstraint(Sketcher.Constraint("DistanceX", -1, 1, 2, 3, Q("6993.25499 mm")))
sketch10.addConstraint(Sketcher.Constraint("DistanceX", -1, 1, 6, 3, Q("6812.735938 mm")))
sketch10.addConstraint(Sketcher.Constraint("DistanceX", 1, 3, 6, 3, Q("126.544052 mm")))
sketch10.setExpression("Constraints[23]", "Params.sketch10_diameter")
doc.recompute()
hole7 = body.newObject("PartDesign::Hole", "Hole006")
hole7.Profile = sketch10
hole7.ThreadType = "None"
hole7.setExpression("Diameter", "Params.hole7_diameter")
hole7.DepthType = "Dimension"
hole7.setExpression("Depth", "Params.hole7_depth")
hole7.DrillPoint = "Angled"
hole7.DrillPointAngle = 118
hole7.HoleCutType = "Countersink"
hole7.setExpression("HoleCutDiameter", "Params.hole7_csink_diameter")
hole7.HoleCutCountersinkAngle = 82
hole7.Reversed = True

doc.recompute()
